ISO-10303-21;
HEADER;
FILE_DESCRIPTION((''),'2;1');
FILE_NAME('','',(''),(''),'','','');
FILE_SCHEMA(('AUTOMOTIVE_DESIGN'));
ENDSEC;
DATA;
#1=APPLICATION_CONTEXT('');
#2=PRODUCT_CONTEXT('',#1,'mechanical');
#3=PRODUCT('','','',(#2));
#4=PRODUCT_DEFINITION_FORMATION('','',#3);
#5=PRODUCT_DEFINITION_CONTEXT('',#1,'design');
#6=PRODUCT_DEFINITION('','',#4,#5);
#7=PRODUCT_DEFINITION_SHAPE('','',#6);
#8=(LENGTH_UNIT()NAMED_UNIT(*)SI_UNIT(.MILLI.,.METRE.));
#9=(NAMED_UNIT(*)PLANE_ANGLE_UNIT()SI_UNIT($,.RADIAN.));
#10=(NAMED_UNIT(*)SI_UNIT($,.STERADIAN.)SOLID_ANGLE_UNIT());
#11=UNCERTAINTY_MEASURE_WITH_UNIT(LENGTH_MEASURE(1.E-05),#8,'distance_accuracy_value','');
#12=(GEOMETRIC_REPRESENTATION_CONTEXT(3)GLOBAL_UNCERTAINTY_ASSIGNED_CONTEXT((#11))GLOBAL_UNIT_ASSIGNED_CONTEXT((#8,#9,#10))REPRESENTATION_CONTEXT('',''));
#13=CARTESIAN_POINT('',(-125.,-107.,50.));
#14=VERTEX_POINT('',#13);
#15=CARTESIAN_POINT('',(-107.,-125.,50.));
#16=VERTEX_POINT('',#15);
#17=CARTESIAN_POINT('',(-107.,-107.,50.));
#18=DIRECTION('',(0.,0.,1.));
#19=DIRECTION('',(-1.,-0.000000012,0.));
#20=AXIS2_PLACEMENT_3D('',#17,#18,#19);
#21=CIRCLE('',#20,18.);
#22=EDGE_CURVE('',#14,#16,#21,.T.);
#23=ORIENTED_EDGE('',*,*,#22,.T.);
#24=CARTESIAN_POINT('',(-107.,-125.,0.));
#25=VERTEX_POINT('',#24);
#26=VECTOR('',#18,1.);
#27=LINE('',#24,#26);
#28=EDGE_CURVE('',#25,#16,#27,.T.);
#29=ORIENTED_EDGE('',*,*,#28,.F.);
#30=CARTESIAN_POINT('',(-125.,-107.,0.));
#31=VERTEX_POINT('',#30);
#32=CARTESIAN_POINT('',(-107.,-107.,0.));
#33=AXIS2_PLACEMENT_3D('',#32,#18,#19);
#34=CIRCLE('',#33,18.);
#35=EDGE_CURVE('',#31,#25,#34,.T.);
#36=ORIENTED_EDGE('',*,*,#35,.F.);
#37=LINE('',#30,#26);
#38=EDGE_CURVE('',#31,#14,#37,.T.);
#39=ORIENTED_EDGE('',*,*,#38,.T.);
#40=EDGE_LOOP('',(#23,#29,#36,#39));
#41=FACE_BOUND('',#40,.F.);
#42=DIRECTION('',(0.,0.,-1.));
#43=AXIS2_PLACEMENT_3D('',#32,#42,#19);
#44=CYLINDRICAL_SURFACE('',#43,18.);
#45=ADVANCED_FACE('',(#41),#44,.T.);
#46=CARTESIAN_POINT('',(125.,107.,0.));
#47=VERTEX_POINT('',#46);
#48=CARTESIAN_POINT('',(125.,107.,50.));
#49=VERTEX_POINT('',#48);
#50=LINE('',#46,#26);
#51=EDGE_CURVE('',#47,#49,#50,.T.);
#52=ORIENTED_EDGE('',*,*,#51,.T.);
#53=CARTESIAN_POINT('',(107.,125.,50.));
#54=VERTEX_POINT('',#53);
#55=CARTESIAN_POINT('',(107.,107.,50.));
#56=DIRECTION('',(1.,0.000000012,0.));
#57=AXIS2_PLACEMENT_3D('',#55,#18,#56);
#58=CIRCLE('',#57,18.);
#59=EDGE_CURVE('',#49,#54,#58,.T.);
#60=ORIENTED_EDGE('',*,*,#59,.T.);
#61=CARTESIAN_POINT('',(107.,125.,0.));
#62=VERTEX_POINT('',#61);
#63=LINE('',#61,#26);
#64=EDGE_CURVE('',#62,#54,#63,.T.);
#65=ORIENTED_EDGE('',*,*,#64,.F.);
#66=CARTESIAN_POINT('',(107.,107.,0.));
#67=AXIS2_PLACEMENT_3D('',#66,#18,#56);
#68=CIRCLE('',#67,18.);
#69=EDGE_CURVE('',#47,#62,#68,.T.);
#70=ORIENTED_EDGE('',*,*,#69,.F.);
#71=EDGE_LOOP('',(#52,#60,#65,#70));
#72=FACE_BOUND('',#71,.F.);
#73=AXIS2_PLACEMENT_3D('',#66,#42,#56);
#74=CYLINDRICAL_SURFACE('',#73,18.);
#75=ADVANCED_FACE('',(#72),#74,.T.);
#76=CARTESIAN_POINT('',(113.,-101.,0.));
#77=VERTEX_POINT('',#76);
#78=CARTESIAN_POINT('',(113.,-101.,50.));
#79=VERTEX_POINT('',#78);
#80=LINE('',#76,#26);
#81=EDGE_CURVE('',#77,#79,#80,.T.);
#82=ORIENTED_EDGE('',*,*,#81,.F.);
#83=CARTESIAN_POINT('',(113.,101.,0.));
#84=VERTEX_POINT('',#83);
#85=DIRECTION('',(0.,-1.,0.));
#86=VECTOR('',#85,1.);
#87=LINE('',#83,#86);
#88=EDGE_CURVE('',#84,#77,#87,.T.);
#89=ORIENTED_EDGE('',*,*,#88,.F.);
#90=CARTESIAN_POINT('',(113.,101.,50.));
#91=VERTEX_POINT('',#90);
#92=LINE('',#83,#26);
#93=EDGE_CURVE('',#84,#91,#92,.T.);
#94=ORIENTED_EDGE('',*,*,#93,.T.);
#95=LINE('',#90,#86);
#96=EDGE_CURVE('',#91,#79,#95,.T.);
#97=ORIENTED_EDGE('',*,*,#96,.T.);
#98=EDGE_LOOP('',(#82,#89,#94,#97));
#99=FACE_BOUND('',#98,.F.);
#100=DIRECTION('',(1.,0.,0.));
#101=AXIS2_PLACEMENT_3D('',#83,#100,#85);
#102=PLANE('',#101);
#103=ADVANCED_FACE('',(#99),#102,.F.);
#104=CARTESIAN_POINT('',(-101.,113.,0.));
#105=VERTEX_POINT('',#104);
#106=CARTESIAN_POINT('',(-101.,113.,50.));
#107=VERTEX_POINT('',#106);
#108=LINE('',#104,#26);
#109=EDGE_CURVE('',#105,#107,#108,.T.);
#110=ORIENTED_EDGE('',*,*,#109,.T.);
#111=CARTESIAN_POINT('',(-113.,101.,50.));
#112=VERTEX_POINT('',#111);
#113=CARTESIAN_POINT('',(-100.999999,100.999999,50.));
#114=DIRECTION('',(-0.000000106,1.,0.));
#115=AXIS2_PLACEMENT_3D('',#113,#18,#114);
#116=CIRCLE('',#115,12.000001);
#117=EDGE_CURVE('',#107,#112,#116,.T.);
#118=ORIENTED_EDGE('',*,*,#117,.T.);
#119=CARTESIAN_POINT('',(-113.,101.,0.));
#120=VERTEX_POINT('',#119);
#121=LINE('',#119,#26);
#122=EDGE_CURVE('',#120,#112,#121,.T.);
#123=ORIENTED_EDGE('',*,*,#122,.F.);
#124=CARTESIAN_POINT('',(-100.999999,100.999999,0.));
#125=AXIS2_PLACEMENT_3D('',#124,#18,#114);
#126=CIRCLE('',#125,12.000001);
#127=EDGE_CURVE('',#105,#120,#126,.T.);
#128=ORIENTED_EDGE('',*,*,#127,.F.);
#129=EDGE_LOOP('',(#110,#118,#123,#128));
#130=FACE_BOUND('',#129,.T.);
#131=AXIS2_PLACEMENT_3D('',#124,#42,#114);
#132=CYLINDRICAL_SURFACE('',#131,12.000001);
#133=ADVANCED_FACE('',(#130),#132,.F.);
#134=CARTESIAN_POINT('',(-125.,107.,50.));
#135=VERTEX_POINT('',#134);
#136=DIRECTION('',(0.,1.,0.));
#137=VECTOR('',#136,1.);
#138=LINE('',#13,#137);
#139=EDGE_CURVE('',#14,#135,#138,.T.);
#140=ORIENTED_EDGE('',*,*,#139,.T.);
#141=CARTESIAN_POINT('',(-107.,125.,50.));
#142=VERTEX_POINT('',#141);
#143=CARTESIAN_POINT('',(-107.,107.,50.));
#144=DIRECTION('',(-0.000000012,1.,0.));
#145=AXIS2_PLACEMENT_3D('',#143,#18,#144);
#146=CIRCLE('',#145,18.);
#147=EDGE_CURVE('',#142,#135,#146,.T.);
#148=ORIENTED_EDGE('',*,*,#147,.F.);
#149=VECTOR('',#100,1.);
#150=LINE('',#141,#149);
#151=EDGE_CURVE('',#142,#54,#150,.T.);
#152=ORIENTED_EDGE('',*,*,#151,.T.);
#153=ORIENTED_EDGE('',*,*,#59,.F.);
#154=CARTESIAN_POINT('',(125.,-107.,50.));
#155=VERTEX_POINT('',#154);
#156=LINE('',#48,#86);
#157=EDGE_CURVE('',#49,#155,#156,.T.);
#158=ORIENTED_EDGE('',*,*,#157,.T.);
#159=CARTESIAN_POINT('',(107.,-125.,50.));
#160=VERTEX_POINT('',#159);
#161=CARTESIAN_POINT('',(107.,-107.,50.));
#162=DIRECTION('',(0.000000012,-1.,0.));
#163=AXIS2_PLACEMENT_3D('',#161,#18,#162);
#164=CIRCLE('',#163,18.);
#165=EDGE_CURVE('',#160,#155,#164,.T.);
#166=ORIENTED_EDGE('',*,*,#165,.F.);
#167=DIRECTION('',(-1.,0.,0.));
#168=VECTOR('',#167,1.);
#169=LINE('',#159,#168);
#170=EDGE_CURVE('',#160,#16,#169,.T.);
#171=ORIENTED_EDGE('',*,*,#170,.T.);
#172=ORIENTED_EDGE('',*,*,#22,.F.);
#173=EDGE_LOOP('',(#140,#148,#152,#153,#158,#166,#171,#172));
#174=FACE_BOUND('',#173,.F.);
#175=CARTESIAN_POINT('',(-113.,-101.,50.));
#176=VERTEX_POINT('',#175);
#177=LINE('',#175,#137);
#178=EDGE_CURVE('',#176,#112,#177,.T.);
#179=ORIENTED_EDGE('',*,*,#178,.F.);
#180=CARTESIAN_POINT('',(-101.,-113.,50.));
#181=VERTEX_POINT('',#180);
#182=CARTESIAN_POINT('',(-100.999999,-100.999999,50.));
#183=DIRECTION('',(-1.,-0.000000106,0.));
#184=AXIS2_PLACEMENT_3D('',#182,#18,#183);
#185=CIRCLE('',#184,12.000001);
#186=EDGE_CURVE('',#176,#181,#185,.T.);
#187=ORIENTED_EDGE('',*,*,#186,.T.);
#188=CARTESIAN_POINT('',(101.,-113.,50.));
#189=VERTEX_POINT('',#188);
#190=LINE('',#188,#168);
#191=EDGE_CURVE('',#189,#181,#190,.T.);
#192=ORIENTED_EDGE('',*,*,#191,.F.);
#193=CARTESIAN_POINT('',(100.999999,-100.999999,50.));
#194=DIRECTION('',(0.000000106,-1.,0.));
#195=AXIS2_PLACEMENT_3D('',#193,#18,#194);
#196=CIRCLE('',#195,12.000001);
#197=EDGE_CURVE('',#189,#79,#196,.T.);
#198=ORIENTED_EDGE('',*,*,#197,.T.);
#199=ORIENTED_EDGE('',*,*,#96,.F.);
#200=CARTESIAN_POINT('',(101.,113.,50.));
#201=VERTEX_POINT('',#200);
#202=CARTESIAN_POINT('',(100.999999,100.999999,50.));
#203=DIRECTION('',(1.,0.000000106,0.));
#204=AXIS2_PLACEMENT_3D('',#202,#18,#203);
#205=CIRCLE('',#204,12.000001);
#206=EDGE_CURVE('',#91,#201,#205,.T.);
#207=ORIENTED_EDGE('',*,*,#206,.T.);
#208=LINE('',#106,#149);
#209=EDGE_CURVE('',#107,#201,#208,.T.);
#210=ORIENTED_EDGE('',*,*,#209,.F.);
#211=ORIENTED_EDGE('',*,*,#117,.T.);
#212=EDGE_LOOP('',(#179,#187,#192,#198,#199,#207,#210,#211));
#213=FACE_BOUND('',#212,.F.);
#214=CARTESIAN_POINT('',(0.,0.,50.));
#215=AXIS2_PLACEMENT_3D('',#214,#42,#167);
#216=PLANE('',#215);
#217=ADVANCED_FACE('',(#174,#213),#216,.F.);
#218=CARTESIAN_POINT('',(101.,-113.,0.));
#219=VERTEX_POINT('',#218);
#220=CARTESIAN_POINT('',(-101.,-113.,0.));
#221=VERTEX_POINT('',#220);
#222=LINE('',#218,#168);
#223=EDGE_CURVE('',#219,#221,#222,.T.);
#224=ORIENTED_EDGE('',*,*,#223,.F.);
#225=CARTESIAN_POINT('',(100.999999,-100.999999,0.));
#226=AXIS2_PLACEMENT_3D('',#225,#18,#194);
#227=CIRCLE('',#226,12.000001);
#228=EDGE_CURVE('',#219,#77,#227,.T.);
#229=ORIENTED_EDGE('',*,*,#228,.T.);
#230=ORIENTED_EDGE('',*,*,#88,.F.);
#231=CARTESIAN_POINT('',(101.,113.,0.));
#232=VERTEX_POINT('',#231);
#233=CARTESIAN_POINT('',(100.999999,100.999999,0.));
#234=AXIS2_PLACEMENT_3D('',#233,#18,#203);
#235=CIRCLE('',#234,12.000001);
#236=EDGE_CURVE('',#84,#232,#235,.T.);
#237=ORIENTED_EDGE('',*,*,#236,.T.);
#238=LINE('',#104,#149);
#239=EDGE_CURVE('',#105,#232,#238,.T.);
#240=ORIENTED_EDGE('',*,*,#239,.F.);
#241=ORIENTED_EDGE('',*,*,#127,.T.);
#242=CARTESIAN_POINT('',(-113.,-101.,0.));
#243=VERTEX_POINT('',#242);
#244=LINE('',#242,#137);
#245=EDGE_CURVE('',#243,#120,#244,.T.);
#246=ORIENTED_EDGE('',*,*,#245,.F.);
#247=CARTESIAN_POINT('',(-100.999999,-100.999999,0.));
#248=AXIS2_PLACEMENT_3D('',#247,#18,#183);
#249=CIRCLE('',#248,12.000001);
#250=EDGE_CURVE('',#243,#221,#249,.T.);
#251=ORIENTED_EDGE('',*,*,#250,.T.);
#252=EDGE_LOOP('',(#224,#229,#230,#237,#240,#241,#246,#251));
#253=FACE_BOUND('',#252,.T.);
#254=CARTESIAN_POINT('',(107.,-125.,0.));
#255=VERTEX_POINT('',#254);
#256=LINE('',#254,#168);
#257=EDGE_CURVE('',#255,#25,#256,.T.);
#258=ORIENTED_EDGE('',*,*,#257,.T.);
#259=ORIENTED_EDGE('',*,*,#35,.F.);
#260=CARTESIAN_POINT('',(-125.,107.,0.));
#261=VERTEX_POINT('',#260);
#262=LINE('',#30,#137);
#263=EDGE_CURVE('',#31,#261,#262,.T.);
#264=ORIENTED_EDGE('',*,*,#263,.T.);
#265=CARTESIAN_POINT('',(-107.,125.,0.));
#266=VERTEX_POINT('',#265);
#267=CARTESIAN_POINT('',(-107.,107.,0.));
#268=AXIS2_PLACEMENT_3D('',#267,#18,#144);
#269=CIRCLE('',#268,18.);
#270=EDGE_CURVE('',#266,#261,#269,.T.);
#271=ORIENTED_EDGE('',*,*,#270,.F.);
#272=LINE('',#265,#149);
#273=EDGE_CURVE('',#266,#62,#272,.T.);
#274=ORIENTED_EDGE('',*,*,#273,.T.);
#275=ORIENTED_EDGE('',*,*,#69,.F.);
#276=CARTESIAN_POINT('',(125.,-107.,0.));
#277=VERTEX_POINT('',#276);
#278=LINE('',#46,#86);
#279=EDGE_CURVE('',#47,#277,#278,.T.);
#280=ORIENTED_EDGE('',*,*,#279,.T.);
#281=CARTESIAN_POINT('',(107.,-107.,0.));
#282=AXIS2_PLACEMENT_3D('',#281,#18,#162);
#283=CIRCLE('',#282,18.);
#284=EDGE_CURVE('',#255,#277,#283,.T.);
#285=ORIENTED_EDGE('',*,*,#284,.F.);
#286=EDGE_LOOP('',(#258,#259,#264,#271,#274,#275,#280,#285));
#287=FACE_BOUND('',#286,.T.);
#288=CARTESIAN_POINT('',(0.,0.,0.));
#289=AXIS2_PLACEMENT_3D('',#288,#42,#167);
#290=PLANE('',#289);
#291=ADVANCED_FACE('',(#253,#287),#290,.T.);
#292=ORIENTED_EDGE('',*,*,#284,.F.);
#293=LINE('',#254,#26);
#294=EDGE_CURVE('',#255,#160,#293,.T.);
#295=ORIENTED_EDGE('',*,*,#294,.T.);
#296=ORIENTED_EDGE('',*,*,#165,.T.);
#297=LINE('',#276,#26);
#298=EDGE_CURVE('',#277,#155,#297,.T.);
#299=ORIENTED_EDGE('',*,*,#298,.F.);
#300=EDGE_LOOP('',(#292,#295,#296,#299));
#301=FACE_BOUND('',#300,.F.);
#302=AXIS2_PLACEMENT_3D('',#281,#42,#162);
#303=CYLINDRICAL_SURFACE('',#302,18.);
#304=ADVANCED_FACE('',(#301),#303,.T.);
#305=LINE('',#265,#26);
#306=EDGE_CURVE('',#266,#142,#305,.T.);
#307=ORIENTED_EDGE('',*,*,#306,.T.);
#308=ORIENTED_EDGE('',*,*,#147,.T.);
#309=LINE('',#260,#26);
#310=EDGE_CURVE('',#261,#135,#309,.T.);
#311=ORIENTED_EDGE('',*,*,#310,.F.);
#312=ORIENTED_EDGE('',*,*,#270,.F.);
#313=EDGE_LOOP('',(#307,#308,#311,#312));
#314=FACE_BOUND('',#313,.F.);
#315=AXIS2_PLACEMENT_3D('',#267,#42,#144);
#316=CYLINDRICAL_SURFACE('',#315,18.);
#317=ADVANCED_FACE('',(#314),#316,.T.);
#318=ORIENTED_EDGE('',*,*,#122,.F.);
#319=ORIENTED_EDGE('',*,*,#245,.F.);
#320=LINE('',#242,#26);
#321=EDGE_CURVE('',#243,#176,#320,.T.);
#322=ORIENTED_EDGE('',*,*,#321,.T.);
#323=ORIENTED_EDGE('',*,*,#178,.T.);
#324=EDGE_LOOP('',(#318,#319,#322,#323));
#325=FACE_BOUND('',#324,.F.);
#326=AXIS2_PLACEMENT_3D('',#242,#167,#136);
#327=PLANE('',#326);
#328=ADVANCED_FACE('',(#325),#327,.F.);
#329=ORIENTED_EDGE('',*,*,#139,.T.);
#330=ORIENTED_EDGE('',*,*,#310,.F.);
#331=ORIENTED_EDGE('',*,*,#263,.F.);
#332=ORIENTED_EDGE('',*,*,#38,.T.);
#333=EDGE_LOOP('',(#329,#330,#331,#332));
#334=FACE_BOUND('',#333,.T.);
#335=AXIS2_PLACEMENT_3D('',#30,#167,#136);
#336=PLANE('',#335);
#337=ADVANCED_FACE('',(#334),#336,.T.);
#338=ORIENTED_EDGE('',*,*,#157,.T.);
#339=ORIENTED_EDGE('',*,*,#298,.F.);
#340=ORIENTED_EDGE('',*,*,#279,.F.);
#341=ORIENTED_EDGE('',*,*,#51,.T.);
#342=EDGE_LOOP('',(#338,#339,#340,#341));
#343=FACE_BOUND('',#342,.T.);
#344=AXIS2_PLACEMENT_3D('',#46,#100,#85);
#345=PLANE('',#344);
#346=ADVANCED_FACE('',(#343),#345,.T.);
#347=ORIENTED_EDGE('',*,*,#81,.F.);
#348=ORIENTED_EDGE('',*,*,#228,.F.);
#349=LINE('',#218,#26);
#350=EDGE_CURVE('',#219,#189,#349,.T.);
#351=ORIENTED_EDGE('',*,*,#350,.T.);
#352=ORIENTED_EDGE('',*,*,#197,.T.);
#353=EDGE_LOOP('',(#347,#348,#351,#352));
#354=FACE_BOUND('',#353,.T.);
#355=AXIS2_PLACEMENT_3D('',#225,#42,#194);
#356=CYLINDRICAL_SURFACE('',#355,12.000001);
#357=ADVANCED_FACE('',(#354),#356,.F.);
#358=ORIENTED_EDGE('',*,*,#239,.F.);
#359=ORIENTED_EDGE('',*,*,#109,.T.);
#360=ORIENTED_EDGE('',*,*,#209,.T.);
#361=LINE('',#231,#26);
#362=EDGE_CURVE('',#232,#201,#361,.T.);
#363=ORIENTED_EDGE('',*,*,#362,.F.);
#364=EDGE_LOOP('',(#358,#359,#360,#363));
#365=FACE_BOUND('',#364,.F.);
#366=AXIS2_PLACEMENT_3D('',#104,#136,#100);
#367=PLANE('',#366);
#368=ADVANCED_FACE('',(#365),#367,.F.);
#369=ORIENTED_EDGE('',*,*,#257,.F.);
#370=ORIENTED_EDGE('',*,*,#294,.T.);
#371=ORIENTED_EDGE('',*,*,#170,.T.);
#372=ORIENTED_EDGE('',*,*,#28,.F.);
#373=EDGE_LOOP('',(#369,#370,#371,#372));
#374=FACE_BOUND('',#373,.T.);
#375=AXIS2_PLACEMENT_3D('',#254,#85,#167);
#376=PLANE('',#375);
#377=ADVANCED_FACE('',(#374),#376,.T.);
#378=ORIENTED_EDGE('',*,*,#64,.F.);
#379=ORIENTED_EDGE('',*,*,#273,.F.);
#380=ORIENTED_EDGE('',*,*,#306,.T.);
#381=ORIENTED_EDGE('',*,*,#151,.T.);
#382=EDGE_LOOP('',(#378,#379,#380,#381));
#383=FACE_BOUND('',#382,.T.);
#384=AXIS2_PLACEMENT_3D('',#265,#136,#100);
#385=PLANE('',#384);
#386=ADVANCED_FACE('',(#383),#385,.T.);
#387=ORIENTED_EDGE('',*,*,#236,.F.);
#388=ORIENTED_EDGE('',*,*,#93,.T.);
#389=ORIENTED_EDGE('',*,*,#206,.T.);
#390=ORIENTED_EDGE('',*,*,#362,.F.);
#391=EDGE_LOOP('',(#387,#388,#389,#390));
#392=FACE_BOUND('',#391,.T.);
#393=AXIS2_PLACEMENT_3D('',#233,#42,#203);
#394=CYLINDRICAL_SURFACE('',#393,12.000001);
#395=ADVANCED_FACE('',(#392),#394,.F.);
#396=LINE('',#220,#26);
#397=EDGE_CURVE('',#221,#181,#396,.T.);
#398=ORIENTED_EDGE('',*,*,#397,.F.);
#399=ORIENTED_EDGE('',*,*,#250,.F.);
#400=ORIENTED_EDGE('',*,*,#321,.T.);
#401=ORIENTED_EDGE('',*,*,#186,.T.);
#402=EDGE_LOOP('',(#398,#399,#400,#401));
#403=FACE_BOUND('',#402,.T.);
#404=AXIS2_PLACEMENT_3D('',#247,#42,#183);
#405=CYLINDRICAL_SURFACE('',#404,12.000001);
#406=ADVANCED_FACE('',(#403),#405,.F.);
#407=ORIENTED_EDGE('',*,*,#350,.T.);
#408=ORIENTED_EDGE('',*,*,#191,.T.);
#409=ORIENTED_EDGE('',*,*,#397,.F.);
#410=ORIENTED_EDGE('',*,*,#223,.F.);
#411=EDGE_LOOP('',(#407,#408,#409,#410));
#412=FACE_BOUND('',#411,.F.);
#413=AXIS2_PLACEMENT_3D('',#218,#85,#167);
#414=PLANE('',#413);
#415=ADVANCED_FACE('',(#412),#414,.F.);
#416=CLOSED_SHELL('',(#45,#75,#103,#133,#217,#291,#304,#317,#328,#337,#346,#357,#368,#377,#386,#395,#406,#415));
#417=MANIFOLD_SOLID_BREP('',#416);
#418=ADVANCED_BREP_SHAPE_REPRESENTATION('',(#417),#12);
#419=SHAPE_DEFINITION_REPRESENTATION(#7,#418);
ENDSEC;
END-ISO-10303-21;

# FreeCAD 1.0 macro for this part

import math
import FreeCAD as App
import Part
import Sketcher

V = App.Vector

doc = App.newDocument("Part")
params = doc.addObject("Spreadsheet::Sheet", "Params")
for row, (alias, value) in enumerate([
    ("sketch1_radius", "18 mm"),
    ("sketch1_radius2", "12.000001 mm"),
    ("sketch1_width", "214 mm"),
    ("sketch1_width2", "202 mm"),
    ("pad1_length", "50 mm"),
], start=1):
    params.set(f"A{row}", alias)
    params.set(f"B{row}", "=" + value)
    params.setAlias(f"B{row}", alias)

body = doc.addObject("PartDesign::Body", "Body")

sketch1 = doc.addObject("Sketcher::SketchObject", "Sketch")
body.addObject(sketch1)
sketch1.AttachmentSupport = (doc.XY_Plane, [""])
sketch1.MapMode = "FlatFace"
sketch1.addGeometry(Part.LineSegment(V(107, 125, 0), V(-107, 125, 0)), False)
sketch1.addGeometry(Part.ArcOfCircle(Part.Circle(V(-107, 107, 0), V(0, 0, 1), 18), math.radians(90), math.radians(180)), False)
sketch1.addGeometry(Part.LineSegment(V(-125, 107, 0), V(-125, -107, 0)), False)
sketch1.addGeometry(Part.ArcOfCircle(Part.Circle(V(-107, -107, 0), V(0, 0, 1), 18), math.radians(-180), math.radians(-90)), False)
sketch1.addGeometry(Part.LineSegment(V(-107, -125, 0), V(107, -125, 0)), False)
sketch1.addGeometry(Part.ArcOfCircle(Part.Circle(V(107, -107, 0), V(0, 0, 1), 18), math.radians(-90), math.radians(0)), False)
sketch1.addGeometry(Part.LineSegment(V(125, -107, 0), V(125, 107, 0)), False)
sketch1.addGeometry(Part.ArcOfCircle(Part.Circle(V(107, 107, 0), V(0, 0, 1), 18), math.radians(0), math.radians(90)), False)
sketch1.addGeometry(Part.LineSegment(V(-101, 113, 0), V(101, 113, 0)), False)
sketch1.addGeometry(Part.ArcOfCircle(Part.Circle(V(101, 101, 0), V(0, 0, 1), 12), math.radians(0), math.radians(90)), False)
sketch1.addGeometry(Part.LineSegment(V(113, 101, 0), V(113, -101, 0)), False)
sketch1.addGeometry(Part.ArcOfCircle(Part.Circle(V(101, -101, 0), V(0, 0, 1), 12), math.radians(-90), math.radians(0)), False)
sketch1.addGeometry(Part.LineSegment(V(101, -113, 0), V(-101, -113, 0)), False)
sketch1.addGeometry(Part.ArcOfCircle(Part.Circle(V(-101, -101, 0), V(0, 0, 1), 12), math.radians(-180), math.radians(-90)), False)
sketch1.addGeometry(Part.LineSegment(V(-113, -101, 0), V(-113, 101, 0)), False)
sketch1.addGeometry(Part.ArcOfCircle(Part.Circle(V(-101, 101, 0), V(0, 0, 1), 12), math.radians(90), math.radians(180)), False)
sketch1.addConstraint(Sketcher.Constraint("Tangent", 0, 2, 1, 1))
sketch1.addConstraint(Sketcher.Constraint("Tangent", 1, 2, 2, 1))
sketch1.addConstraint(Sketcher.Constraint("Tangent", 2, 2, 3, 1))
sketch1.addConstraint(Sketcher.Constraint("Tangent", 3, 2, 4, 1))
sketch1.addConstraint(Sketcher.Constraint("Tangent", 4, 2, 5, 1))
sketch1.addConstraint(Sketcher.Constraint("Tangent", 5, 2, 6, 1))
sketch1.addConstraint(Sketcher.Constraint("Tangent", 6, 2, 7, 1))
sketch1.addConstraint(Sketcher.Constraint("Tangent", 7, 2, 0, 1))
sketch1.addConstraint(Sketcher.Constraint("Tangent", 8, 2, 9, 2))
sketch1.addConstraint(Sketcher.Constraint("Tangent", 9, 1, 10, 1))
sketch1.addConstraint(Sketcher.Constraint("Tangent", 10, 2, 11, 2))
sketch1.addConstraint(Sketcher.Constraint("Tangent", 11, 1, 12, 1))
sketch1.addConstraint(Sketcher.Constraint("Tangent", 12, 2, 13, 2))
sketch1.addConstraint(Sketcher.Constraint("Tangent", 13, 1, 14, 1))
sketch1.addConstraint(Sketcher.Constraint("Tangent", 14, 2, 15, 2))
sketch1.addConstraint(Sketcher.Constraint("Tangent", 15, 1, 8, 1))
sketch1.addConstraint(Sketcher.Constraint("Horizontal", 0))
sketch1.addConstraint(Sketcher.Constraint("Vertical", 2))
sketch1.addConstraint(Sketcher.Constraint("Horizontal", 4))
sketch1.addConstraint(Sketcher.Constraint("Vertical", 6))
sketch1.addConstraint(Sketcher.Constraint("Horizontal", 8))
sketch1.addConstraint(Sketcher.Constraint("Vertical", 10))
sketch1.addConstraint(Sketcher.Constraint("Horizontal", 12))
sketch1.addConstraint(Sketcher.Constraint("Vertical", 14))
sketch1.addConstraint(Sketcher.Constraint("Equal", 1, 3))
sketch1.addConstraint(Sketcher.Constraint("Equal", 3, 5))
sketch1.addConstraint(Sketcher.Constraint("Equal", 5, 7))
sketch1.addConstraint(Sketcher.Constraint("Equal", 9, 11))
sketch1.addConstraint(Sketcher.Constraint("Equal", 11, 13))
sketch1.addConstraint(Sketcher.Constraint("Equal", 13, 15))
sketch1.addConstraint(Sketcher.Constraint("Symmetric", 1, 3, 5, 3, -1, 1))
sketch1.addConstraint(Sketcher.Constraint("Symmetric", 9, 3, 13, 3, -1, 1))
sketch1.addConstraint(Sketcher.Constraint("Equal", 4, 2))
sketch1.addConstraint(Sketcher.Constraint("Equal", 12, 10))
sketch1.addConstraint(Sketcher.Constraint("Radius", 1, 18.0))
sketch1.addConstraint(Sketcher.Constraint("Radius", 9, 12.000001))
sketch1.addConstraint(Sketcher.Constraint("DistanceX", 0, 2, 0, 1, 214.0))
sketch1.addConstraint(Sketcher.Constraint("DistanceX", 8, 1, 8, 2, 202.0))
sketch1.setExpression("Constraints[34]", "Params.sketch1_radius")
sketch1.setExpression("Constraints[35]", "Params.sketch1_radius2")
sketch1.setExpression("Constraints[36]", "Params.sketch1_width")
sketch1.setExpression("Constraints[37]", "Params.sketch1_width2")
pad1 = doc.addObject("PartDesign::Pad", "Pad")
body.addObject(pad1)
pad1.Profile = sketch1
pad1.setExpression("Length", "Params.pad1_length")

doc.recompute()
